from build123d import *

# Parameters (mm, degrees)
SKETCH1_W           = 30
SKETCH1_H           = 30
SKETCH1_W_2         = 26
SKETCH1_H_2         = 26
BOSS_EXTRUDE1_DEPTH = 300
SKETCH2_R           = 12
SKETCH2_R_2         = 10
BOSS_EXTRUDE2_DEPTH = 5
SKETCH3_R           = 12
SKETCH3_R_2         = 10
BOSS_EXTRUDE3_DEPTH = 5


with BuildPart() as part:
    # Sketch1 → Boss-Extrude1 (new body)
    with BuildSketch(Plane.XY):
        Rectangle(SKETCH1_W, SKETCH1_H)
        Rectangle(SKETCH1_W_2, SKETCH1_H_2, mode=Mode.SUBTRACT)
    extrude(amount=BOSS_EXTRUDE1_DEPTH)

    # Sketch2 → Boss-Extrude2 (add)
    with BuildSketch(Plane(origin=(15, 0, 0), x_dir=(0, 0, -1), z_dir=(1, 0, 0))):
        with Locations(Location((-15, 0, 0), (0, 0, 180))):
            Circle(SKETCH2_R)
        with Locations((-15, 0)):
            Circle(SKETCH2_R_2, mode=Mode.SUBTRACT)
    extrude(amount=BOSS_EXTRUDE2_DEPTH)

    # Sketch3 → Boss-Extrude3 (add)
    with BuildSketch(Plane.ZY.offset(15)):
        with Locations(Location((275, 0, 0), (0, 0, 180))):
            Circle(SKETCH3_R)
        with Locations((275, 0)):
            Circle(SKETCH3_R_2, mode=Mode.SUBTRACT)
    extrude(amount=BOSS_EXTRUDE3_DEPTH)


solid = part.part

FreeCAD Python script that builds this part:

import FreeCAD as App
import Part
import Sketcher
Q = App.Units.Quantity


def add_polygon(sketch, points):
    """Adds a closed chain of lines whose ends are joined by coincident constraints."""
    first, n = sketch.GeometryCount, len(points)
    for a, b in zip(points, points[1:] + points[:1]):
        sketch.addGeometry(Part.LineSegment(App.Vector(*a, 0), App.Vector(*b, 0)), False)
    for i in range(n):
        sketch.addConstraint(Sketcher.Constraint("Coincident", first + i, 2, first + (i + 1) % n, 1))

doc = App.newDocument("Part")
params = doc.addObject("Spreadsheet::Sheet", "Params")
for row, (alias, value) in enumerate([
    ("sketch1_width", "30 mm"),
    ("sketch1_width2", "26 mm"),
    ("pad1_length", "300 mm"),
    ("sketch2_diameter", "24 mm"),
    ("sketch2_diameter2", "20 mm"),
    ("pad2_length", "5 mm"),
    ("sketch3_diameter", "24 mm"),
    ("sketch3_diameter2", "20 mm"),
    ("pad3_length", "5 mm"),
], start=1):
    params.set(f"A{row}", alias)
    params.set(f"B{row}", "=" + value)
    params.setAlias(f"B{row}", alias)

body = doc.addObject("PartDesign::Body", "Body")

sketch1 = body.newObject("Sketcher::SketchObject", "Sketch")
sketch1.AttachmentSupport = (doc.getObject("XY_Plane"), [""])
sketch1.MapMode = "FlatFace"
add_polygon(sketch1, [(-15, 15), (-15, -15), (15, -15), (15, 15)])
add_polygon(sketch1, [(13, -13), (-13, -13), (-13, 13), (13, 13)])
sketch1.addConstraint([
    Sketcher.Constraint("Vertical", 0),
    Sketcher.Constraint("Horizontal", 1),
    Sketcher.Constraint("Vertical", 2),
    Sketcher.Constraint("Horizontal", 3),
    Sketcher.Constraint("Horizontal", 4),
    Sketcher.Constraint("Vertical", 5),
    Sketcher.Constraint("Horizontal", 6),
    Sketcher.Constraint("Vertical", 7),
    Sketcher.Constraint("Symmetric", 0, 2, 2, 2, -1, 1),
    Sketcher.Constraint("Symmetric", 4, 2, 6, 2, -1, 1),
    Sketcher.Constraint("Equal", 3, 0),
    Sketcher.Constraint("Equal", 6, 5),
    Sketcher.Constraint("DistanceX", 1, 1, 1, 2, Q("30 mm")),
    Sketcher.Constraint("DistanceX", 4, 2, 4, 1, Q("26 mm")),
])
sketch1.setExpression("Constraints[20]", "Params.sketch1_width")
sketch1.setExpression("Constraints[21]", "Params.sketch1_width2")
pad1 = body.newObject("PartDesign::Pad", "Pad")
pad1.Profile = sketch1
pad1.setExpression("Length", "Params.pad1_length")

sketch2 = body.newObject("Sketcher::SketchObject", "Sketch001")
sketch2.AttachmentSupport = (doc.getObject("YZ_Plane"), [""])
sketch2.MapMode = "FlatFace"
sketch2.AttachmentOffset = App.Placement(App.Vector(0, 0, 15), App.Rotation())
sketch2.addGeometry([
    Part.Circle(App.Vector(0, 15, 0), App.Vector(0, 0, 1), 12),
    Part.Circle(App.Vector(0, 15, 0), App.Vector(0, 0, 1), 10),
], False)
sketch2.addConstraint([
    Sketcher.Constraint("Coincident", 1, 3, 0, 3),
    Sketcher.Constraint("PointOnObject", 0, 3, -2),
    Sketcher.Constraint("Diameter", 0, Q("24 mm")),
    Sketcher.Constraint("Diameter", 1, Q("20 mm")),
    Sketcher.Constraint("DistanceY", -1, 1, 0, 3, Q("15 mm")),
])
sketch2.setExpression("Constraints[2]", "Params.sketch2_diameter")
sketch2.setExpression("Constraints[3]", "Params.sketch2_diameter2")
pad2 = body.newObject("PartDesign::Pad", "Pad001")
pad2.Profile = sketch2
pad2.setExpression("Length", "Params.pad2_length")

sketch3 = body.newObject("Sketcher::SketchObject", "Sketch002")
sketch3.AttachmentSupport = (doc.getObject("YZ_Plane"), [""])
sketch3.MapMode = "FlatFace"
sketch3.AttachmentOffset = App.Placement(App.Vector(0, 0, -15), App.Rotation())
sketch3.addGeometry([
    Part.Circle(App.Vector(0, 275, 0), App.Vector(0, 0, 1), 12),
    Part.Circle(App.Vector(0, 275, 0), App.Vector(0, 0, 1), 10),
], False)
sketch3.addConstraint([
    Sketcher.Constraint("Coincident", 1, 3, 0, 3),
    Sketcher.Constraint("PointOnObject", 0, 3, -2),
    Sketcher.Constraint("Diameter", 0, Q("24 mm")),
    Sketcher.Constraint("Diameter", 1, Q("20 mm")),
    Sketcher.Constraint("DistanceY", -1, 1, 0, 3, Q("275 mm")),
])
sketch3.setExpression("Constraints[2]", "Params.sketch3_diameter")
sketch3.setExpression("Constraints[3]", "Params.sketch3_diameter2")
pad3 = body.newObject("PartDesign::Pad", "Pad002")
pad3.Profile = sketch3
pad3.setExpression("Length", "Params.pad3_length")
pad3.Reversed = True

doc.recompute()
